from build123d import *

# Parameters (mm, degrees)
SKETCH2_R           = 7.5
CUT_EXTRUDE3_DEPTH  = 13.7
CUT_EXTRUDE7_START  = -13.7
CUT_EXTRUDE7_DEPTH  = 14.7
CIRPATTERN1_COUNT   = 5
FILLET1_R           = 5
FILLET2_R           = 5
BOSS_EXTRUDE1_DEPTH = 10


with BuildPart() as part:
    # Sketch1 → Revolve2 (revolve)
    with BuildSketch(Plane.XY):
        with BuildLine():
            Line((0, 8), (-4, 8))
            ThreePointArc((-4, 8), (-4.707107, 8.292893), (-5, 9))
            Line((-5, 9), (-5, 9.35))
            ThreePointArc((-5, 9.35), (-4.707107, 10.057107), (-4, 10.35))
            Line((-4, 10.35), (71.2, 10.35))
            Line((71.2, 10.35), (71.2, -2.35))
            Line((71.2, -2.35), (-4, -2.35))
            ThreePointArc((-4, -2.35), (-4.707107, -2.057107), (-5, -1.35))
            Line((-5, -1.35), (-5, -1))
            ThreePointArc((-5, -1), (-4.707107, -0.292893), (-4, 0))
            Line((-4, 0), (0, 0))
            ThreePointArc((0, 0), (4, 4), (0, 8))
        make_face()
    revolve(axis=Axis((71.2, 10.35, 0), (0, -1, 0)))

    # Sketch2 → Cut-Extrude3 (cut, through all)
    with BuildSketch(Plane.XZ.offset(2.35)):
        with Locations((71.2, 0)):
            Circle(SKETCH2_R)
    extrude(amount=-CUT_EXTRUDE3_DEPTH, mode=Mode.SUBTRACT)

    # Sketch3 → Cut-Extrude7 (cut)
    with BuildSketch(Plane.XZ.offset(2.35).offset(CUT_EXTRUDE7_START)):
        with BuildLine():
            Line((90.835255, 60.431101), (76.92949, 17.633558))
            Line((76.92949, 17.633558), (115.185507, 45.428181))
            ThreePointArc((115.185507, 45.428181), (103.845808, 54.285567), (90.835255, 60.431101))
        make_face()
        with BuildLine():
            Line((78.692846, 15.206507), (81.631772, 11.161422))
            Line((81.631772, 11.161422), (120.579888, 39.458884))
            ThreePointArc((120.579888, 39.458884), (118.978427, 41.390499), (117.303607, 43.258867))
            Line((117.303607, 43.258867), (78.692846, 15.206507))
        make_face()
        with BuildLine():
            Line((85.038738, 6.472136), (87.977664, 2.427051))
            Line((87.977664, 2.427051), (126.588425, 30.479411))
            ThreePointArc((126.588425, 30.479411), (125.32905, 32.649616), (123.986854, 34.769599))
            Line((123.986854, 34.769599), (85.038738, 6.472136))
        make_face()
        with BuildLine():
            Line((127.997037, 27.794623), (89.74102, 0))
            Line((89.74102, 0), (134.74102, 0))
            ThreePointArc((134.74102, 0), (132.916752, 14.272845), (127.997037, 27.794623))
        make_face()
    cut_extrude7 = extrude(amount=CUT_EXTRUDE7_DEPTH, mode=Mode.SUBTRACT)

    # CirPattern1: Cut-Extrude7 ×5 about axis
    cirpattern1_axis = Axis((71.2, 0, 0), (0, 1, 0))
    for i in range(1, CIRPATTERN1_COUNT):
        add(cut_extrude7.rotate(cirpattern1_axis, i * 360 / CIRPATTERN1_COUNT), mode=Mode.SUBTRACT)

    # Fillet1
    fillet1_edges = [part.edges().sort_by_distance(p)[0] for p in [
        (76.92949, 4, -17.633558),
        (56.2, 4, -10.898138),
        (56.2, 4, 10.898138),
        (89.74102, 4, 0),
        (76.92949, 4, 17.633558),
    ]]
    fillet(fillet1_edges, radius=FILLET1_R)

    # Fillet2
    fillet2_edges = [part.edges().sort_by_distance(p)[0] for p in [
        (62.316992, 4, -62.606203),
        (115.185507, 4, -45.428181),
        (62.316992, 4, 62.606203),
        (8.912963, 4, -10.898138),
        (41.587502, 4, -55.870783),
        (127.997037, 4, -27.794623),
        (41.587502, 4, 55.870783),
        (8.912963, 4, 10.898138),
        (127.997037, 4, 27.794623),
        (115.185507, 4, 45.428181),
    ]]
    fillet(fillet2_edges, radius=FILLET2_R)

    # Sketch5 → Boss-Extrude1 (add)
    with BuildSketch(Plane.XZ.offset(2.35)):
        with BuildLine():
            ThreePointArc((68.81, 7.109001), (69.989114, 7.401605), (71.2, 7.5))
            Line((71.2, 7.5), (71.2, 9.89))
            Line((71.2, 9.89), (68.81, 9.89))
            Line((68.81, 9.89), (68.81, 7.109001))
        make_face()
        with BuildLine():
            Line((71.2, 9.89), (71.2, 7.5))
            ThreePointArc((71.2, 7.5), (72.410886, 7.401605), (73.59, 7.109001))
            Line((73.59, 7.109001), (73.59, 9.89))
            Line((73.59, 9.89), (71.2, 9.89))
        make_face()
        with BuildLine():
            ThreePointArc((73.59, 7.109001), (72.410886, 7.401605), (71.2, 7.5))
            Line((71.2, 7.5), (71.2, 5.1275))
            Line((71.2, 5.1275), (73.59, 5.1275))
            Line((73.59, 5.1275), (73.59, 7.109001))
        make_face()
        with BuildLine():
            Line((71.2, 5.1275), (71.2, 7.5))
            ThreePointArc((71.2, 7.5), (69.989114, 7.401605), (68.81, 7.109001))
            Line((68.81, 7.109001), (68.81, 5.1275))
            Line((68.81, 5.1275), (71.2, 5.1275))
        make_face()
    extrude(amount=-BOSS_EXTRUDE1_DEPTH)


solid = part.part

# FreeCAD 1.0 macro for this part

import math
import FreeCAD as App
import Part
import Sketcher

V = App.Vector
Q = App.Units.Quantity


def edges_at(feature, points):
    """Names of the edges that pass closest to the given points."""
    edges = feature.Shape.Edges
    near = lambda p: min(range(len(edges)), key=lambda i: edges[i].distToShape(Part.Vertex(*p))[0])
    return sorted({f"Edge{near(p) + 1}" for p in points})


def add_polygon(sketch, points):
    """Adds a closed chain of lines whose ends are joined by coincident constraints."""
    first, n = sketch.GeometryCount, len(points)
    for a, b in zip(points, points[1:] + points[:1]):
        sketch.addGeometry(Part.LineSegment(App.Vector(*a, 0), App.Vector(*b, 0)), False)
    for i in range(n):
        sketch.addConstraint(Sketcher.Constraint("Coincident", first + i, 2, first + (i + 1) % n, 1))

doc = App.newDocument("Part")
params = doc.addObject("Spreadsheet::Sheet", "Params")
for row, (alias, value) in enumerate([
    ("sketch1_radius", "4 mm"),
    ("sketch1_radius2", "0.999999 mm"),
    ("sketch1_width", "4 mm"),
    ("sketch1_width2", "75.2 mm"),
    ("sketch1_height", "12.7 mm"),
    ("revolution_angle", "360 deg"),
    ("sketch2_diameter", "15 mm"),
    ("sketch3_width", "45 mm"),
    ("sketch3_length", "45 mm"),
    ("sketch3_length2", "5 mm"),
    ("pocket2_length", "14.7 mm"),
    ("fillet_radius", "5 mm"),
    ("fillet2_radius", "5 mm"),
    ("sketch4_width", "4.78 mm"),
    ("pad1_length", "10 mm"),
], start=1):
    params.set(f"A{row}", alias)
    params.set(f"B{row}", "=" + value)
    params.setAlias(f"B{row}", alias)

body = doc.addObject("PartDesign::Body", "Body")

sketch1 = body.newObject("Sketcher::SketchObject", "Sketch")
sketch1.AttachmentSupport = (doc.getObject("XY_Plane"), [""])
sketch1.MapMode = "FlatFace"
sketch1.addGeometry([
    Part.LineSegment(V(-4, 8, 0), V(0, 8, 0)),
    Part.ArcOfCircle(Part.Circle(V(0, 4, 0), V(0, 0, 1), 4), math.radians(-90), math.radians(90)),
    Part.LineSegment(V(0, 0, 0), V(-4, 0, 0)),
    Part.ArcOfCircle(Part.Circle(V(-4, -1, 0), V(0, 0, 1), 1), math.radians(90), math.radians(180)),
    Part.LineSegment(V(-5, -1, 0), V(-5, -1.35, 0)),
    Part.ArcOfCircle(Part.Circle(V(-4, -1.35, 0), V(0, 0, 1), 1), math.radians(180), math.radians(270)),
    Part.LineSegment(V(-4, -2.35, 0), V(71.2, -2.35, 0)),
    Part.LineSegment(V(71.2, -2.35, 0), V(71.2, 10.35, 0)),
    Part.LineSegment(V(71.2, 10.35, 0), V(-4, 10.35, 0)),
    Part.ArcOfCircle(Part.Circle(V(-4, 9.35, 0), V(0, 0, 1), 1), math.radians(90), math.radians(180)),
    Part.LineSegment(V(-5, 9.35, 0), V(-5, 9, 0)),
    Part.ArcOfCircle(Part.Circle(V(-4, 9, 0), V(0, 0, 1), 1), math.radians(180), math.radians(270)),
], False)
sketch1.addGeometry(Part.LineSegment(V(71.2, 10.35, 0), V(71.2, -2.35, 0)), True)
sketch1.addConstraint([
    Sketcher.Constraint("Tangent", 0, 2, 1, 2),
    Sketcher.Constraint("Tangent", 1, 1, 2, 1),
    Sketcher.Constraint("Tangent", 2, 2, 3, 1),
    Sketcher.Constraint("Tangent", 3, 2, 4, 1),
    Sketcher.Constraint("Tangent", 4, 2, 5, 1),
    Sketcher.Constraint("Tangent", 5, 2, 6, 1),
    Sketcher.Constraint("Coincident", 6, 2, 7, 1),
    Sketcher.Constraint("Coincident", 7, 2, 8, 1),
    Sketcher.Constraint("Tangent", 8, 2, 9, 1),
    Sketcher.Constraint("Tangent", 9, 2, 10, 1),
    Sketcher.Constraint("Tangent", 10, 2, 11, 1),
    Sketcher.Constraint("Tangent", 11, 2, 0, 1),
    Sketcher.Constraint("Horizontal", 0),
    Sketcher.Constraint("Horizontal", 2),
    Sketcher.Constraint("Vertical", 4),
    Sketcher.Constraint("Horizontal", 6),
    Sketcher.Constraint("Vertical", 7),
    Sketcher.Constraint("Horizontal", 8),
    Sketcher.Constraint("Vertical", 10),
    Sketcher.Constraint("Vertical", 12),
    Sketcher.Constraint("Coincident", 1, 1, -1, 1),
    Sketcher.Constraint("Coincident", 12, 1, 7, 2),
    Sketcher.Constraint("Equal", 3, 5),
    Sketcher.Constraint("Equal", 5, 9),
    Sketcher.Constraint("Equal", 9, 11),
    Sketcher.Constraint("Horizontal", 5, 2, 12, 2),
    Sketcher.Constraint("Vertical", 5, 3, 9, 3),
    Sketcher.Constraint("Equal", 4, 10),
    Sketcher.Constraint("Radius", 1, 4.0),
    Sketcher.Constraint("Radius", 3, 0.999999),
    Sketcher.Constraint("DistanceX", 0, 1, 0, 2, 4.0),
    Sketcher.Constraint("DistanceX", 6, 1, 6, 2, 75.2),
    Sketcher.Constraint("DistanceY", 7, 1, 7, 2, 12.7),
])
sketch1.setExpression("Constraints[28]", "Params.sketch1_radius")
sketch1.setExpression("Constraints[29]", "Params.sketch1_radius2")
sketch1.setExpression("Constraints[30]", "Params.sketch1_width")
sketch1.setExpression("Constraints[31]", "Params.sketch1_width2")
sketch1.setExpression("Constraints[32]", "Params.sketch1_height")
revolution = body.newObject("PartDesign::Revolution", "Revolution")
revolution.Profile = sketch1
revolution.ReferenceAxis = (sketch1, ["Axis0"])
revolution.setExpression("Angle", "Params.revolution_angle")

sketch2 = body.newObject("Sketcher::SketchObject", "Sketch001")
sketch2.AttachmentSupport = (doc.getObject("XZ_Plane"), [""])
sketch2.MapMode = "FlatFace"
sketch2.AttachmentOffset = App.Placement(V(0, 0, 2.35), App.Rotation())
sketch2.addGeometry(Part.Circle(V(71, 0, 0), V(0, 0, 1), 8), False)
sketch2.addConstraint([
    Sketcher.Constraint("PointOnObject", 0, 3, -1),
    Sketcher.Constraint("Diameter", 0, 15.0),
    Sketcher.Constraint("DistanceX", -1, 1, 0, 3, 71.2),
])
sketch2.setExpression("Constraints[1]", "Params.sketch2_diameter")
pocket1 = body.newObject("PartDesign::Pocket", "Pocket")
pocket1.Profile = sketch2
pocket1.Type = "ThroughAll"

sketch3 = body.newObject("Sketcher::SketchObject", "Sketch002")
sketch3.AttachmentSupport = (doc.getObject("XZ_Plane"), [""])
sketch3.MapMode = "FlatFace"
sketch3.AttachmentOffset = App.Placement(V(0, 0, -11.35), App.Rotation())
sketch3.addGeometry([
    Part.LineSegment(V(90.8, 60.4, 0), V(76.9, 17.6, 0)),
    Part.LineSegment(V(76.9, 17.6, 0), V(115.2, 45.4, 0)),
    Part.ArcOfCircle(Part.Circle(V(69.7, -1.1, 0), V(0, 0, 1), 65), math.radians(46), math.radians(71)),
    Part.LineSegment(V(78.7, 15.2, 0), V(81.6, 11.2, 0)),
    Part.LineSegment(V(81.6, 11.2, 0), V(120.6, 39.5, 0)),
    Part.ArcOfCircle(Part.Circle(V(69.7, -1.1, 0), V(0, 0, 1), 65), math.radians(38.56), math.radians(42.98)),
    Part.LineSegment(V(117.3, 43.3, 0), V(78.7, 15.2, 0)),
    Part.LineSegment(V(85, 6.5, 0), V(88, 2.4, 0)),
    Part.LineSegment(V(88, 2.4, 0), V(126.6, 30.5, 0)),
    Part.ArcOfCircle(Part.Circle(V(69.7, -1.1, 0), V(0, 0, 1), 65), math.radians(29.02), math.radians(33.44)),
    Part.LineSegment(V(124, 34.8, 0), V(85, 6.5, 0)),
    Part.LineSegment(V(128, 27.8, 0), V(89.7, 0, 0)),
    Part.LineSegment(V(89.7, 0, 0), V(134.7, 0, 0)),
    Part.ArcOfCircle(Part.Circle(V(69.7, -1.1, 0), V(0, 0, 1), 65), math.radians(1), math.radians(26)),
], False)
sketch3.addConstraint([
    Sketcher.Constraint("Coincident", 0, 2, 1, 1),
    Sketcher.Constraint("Coincident", 1, 2, 2, 1),
    Sketcher.Constraint("Coincident", 2, 2, 0, 1),
    Sketcher.Constraint("Coincident", 3, 2, 4, 1),
    Sketcher.Constraint("Coincident", 4, 2, 5, 1),
    Sketcher.Constraint("Coincident", 5, 2, 6, 1),
    Sketcher.Constraint("Coincident", 6, 2, 3, 1),
    Sketcher.Constraint("Coincident", 7, 2, 8, 1),
    Sketcher.Constraint("Coincident", 8, 2, 9, 1),
    Sketcher.Constraint("Coincident", 9, 2, 10, 1),
    Sketcher.Constraint("Coincident", 10, 2, 7, 1),
    Sketcher.Constraint("Coincident", 11, 2, 12, 1),
    Sketcher.Constraint("Coincident", 12, 2, 13, 1),
    Sketcher.Constraint("Coincident", 13, 2, 11, 1),
    Sketcher.Constraint("Horizontal", 12),
    Sketcher.Constraint("Coincident", 13, 3, 2, 3),
    Sketcher.Constraint("Equal", 2, 13),
    Sketcher.Constraint("PointOnObject", 11, 2, -1),
    Sketcher.Constraint("Perpendicular", 1, 3),
    Sketcher.Constraint("Perpendicular", 3, 4),
    Sketcher.Constraint("Parallel", 4, 6),
    Sketcher.Constraint("Perpendicular", 6, 7),
    Sketcher.Constraint("Perpendicular", 7, 8),
    Sketcher.Constraint("Parallel", 8, 10),
    Sketcher.Constraint("Parallel", 10, 11),
    Sketcher.Constraint("Equal", 3, 7),
    Sketcher.Constraint("Equal", 6, 8),
    Sketcher.Constraint("Equal", 4, 10),
    Sketcher.Constraint("Equal", 1, 11),
    Sketcher.Constraint("DistanceX", 12, 1, 12, 2, 45.0),
    Sketcher.Constraint("Angle", 0, Q("-108 deg")),
    Sketcher.Constraint("Angle", 1, Q("36 deg")),
    Sketcher.Constraint("Distance", 0, 45.0),
    Sketcher.Constraint("Distance", 3, 5.0),
    Sketcher.Constraint("Radius", 2, 65.000011),
    Sketcher.Constraint("Radius", 5, 64.999611),
    Sketcher.Constraint("Radius", 9, 65.000151),
    Sketcher.Constraint("DistanceY", -1, 1, 2, 2, 60.431101),
    Sketcher.Constraint("DistanceY", -1, 1, 9, 2, 34.769599),
    Sketcher.Constraint("DistanceX", 13, 3, 5, 3, 0.000301),
    Sketcher.Constraint("DistanceY", 5, 3, 0, 2, 18.687102),
    Sketcher.Constraint("DistanceY", 9, 3, 3, 2, 12.2153),
    Sketcher.Constraint("DistanceX", 1, 2, 5, 2, 2.1181),
    Sketcher.Constraint("DistanceX", 2, 2, 9, 2, 33.151599),
    Sketcher.Constraint("DistanceX", -1, 1, 5, 3, 69.749852),
])
sketch3.setExpression("Constraints[29]", "Params.sketch3_width")
sketch3.setExpression("Constraints[32]", "Params.sketch3_length")
sketch3.setExpression("Constraints[33]", "Params.sketch3_length2")
pocket2 = body.newObject("PartDesign::Pocket", "Pocket001")
pocket2.Profile = sketch3
pocket2.setExpression("Length", "Params.pocket2_length")
pocket2.Reversed = True
doc.recompute()

datumline = body.newObject("PartDesign::Line", "DatumLine")
datumline.Placement = App.Placement(V(71.2, 0, 0), App.Rotation(V(0, 0, 1), V(0, 1, 0)))
polarpattern = body.newObject("PartDesign::PolarPattern", "PolarPattern")
polarpattern.Originals = [pocket2]
polarpattern.Axis = (datumline, [""])
polarpattern.Angle = 360
polarpattern.Occurrences = 5
body.Tip = polarpattern
doc.recompute()

fillet = body.newObject("PartDesign::Fillet", "Fillet")
fillet.Base = (polarpattern, edges_at(polarpattern, [
    (76.929, 4, -17.634),
    (56.2, 4, -10.898),
    (56.2, 4, 10.898),
    (89.741, 4, 0),
    (76.929, 4, 17.634),
]))
fillet.setExpression("Radius", "Params.fillet_radius")
doc.recompute()

fillet2 = body.newObject("PartDesign::Fillet", "Fillet001")
fillet2.Base = (fillet, edges_at(fillet, [
    (62.317, 4, -62.606),
    (115.186, 4, -45.428),
    (62.317, 4, 62.606),
    (8.913, 4, -10.898),
    (41.588, 4, -55.871),
    (127.997, 4, -27.795),
    (41.588, 4, 55.871),
    (8.913, 4, 10.898),
    (127.997, 4, 27.795),
    (115.186, 4, 45.428),
]))
fillet2.setExpression("Radius", "Params.fillet2_radius")

sketch4 = body.newObject("Sketcher::SketchObject", "Sketch003")
sketch4.AttachmentSupport = (doc.getObject("XZ_Plane"), [""])
sketch4.MapMode = "FlatFace"
sketch4.AttachmentOffset = App.Placement(V(0, 0, 2.35), App.Rotation())
add_polygon(sketch4, [(73.6, 5.1), (73.6, 9.9), (68.8, 9.9), (68.8, 5.1)])
sketch4.addConstraint([
    Sketcher.Constraint("Vertical", 0),
    Sketcher.Constraint("Horizontal", 1),
    Sketcher.Constraint("Vertical", 2),
    Sketcher.Constraint("Horizontal", 3),
    Sketcher.Constraint("DistanceX", 1, 2, 1, 1, 4.78),
    Sketcher.Constraint("DistanceX", -1, 1, 0, 2, 73.59),
    Sketcher.Constraint("DistanceY", -1, 1, 0, 2, 9.89),
    Sketcher.Constraint("DistanceY", 0, 1, 0, 2, 4.7625),
])
sketch4.setExpression("Constraints[8]", "Params.sketch4_width")
pad1 = body.newObject("PartDesign::Pad", "Pad")
pad1.Profile = sketch4
pad1.setExpression("Length", "Params.pad1_length")
pad1.Reversed = True

doc.recompute()
